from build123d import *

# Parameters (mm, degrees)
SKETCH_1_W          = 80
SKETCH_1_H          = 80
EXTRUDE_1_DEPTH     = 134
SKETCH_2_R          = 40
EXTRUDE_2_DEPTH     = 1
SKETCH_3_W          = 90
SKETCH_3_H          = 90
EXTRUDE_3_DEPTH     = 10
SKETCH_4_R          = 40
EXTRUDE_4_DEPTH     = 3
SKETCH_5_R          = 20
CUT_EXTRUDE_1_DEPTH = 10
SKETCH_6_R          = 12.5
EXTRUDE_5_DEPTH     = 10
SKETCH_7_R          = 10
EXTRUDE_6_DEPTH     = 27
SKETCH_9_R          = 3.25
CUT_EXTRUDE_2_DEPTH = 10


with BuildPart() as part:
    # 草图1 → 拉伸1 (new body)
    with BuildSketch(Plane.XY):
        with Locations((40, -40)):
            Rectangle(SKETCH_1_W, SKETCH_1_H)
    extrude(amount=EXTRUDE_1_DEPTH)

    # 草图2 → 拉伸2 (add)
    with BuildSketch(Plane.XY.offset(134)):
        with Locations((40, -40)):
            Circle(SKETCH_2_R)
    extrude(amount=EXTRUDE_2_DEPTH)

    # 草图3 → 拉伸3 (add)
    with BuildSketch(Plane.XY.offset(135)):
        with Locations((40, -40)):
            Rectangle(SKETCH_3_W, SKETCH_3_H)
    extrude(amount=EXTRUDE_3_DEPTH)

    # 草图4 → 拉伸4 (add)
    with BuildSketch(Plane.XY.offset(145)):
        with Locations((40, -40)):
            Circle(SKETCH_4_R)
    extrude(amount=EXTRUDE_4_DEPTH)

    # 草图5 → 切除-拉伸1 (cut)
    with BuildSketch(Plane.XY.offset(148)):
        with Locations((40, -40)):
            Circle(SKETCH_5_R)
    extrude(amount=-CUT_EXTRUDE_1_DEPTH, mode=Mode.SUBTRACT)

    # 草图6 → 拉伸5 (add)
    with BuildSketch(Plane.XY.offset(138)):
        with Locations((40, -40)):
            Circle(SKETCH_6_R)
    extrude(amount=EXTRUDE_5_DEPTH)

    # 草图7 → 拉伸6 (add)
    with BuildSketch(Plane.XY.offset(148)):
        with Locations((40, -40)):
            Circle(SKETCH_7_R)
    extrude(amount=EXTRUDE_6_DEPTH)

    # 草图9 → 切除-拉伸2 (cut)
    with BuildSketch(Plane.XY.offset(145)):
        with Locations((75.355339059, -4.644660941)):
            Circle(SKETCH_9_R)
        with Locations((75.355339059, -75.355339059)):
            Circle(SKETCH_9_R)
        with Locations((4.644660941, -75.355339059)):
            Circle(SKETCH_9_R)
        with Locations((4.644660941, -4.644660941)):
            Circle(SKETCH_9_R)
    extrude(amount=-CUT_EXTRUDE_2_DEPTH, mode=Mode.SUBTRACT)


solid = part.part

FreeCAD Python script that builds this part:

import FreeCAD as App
import Part
import Sketcher

V = App.Vector


def add_polygon(sketch, points):
    """Adds a closed chain of lines whose ends are joined by coincident constraints."""
    first, n = sketch.GeometryCount, len(points)
    for a, b in zip(points, points[1:] + points[:1]):
        sketch.addGeometry(Part.LineSegment(App.Vector(*a, 0), App.Vector(*b, 0)), False)
    for i in range(n):
        sketch.addConstraint(Sketcher.Constraint("Coincident", first + i, 2, first + (i + 1) % n, 1))

doc = App.newDocument("Part")
body = doc.addObject("PartDesign::Body", "Body")

# Sketch on XY plane
sketch1 = body.newObject("Sketcher::SketchObject", "Sketch")
sketch1.AttachmentSupport = (doc.getObject("XY_Plane"), [""])
sketch1.MapMode = "FlatFace"
add_polygon(sketch1, [(0, 0), (0, -80), (80, -80), (80, 0)])  # lines 0-3
sketch1.addConstraint(Sketcher.Constraint("Vertical", 0))
sketch1.addConstraint(Sketcher.Constraint("Horizontal", 1))
sketch1.addConstraint(Sketcher.Constraint("Vertical", 2))
sketch1.addConstraint(Sketcher.Constraint("Horizontal", 3))
sketch1.addConstraint(Sketcher.Constraint("Coincident", 3, 2, -1, 1))
sketch1.addConstraint(Sketcher.Constraint("Equal", 3, 0))
sketch1.addConstraint(Sketcher.Constraint("DistanceX", 1, 1, 1, 2, 80.0))
pad1 = body.newObject("PartDesign::Pad", "Pad")
pad1.Profile = sketch1
pad1.Length = 134

# Sketch on XY plane
sketch2 = body.newObject("Sketcher::SketchObject", "Sketch001")
sketch2.AttachmentSupport = (doc.getObject("XY_Plane"), [""])
sketch2.MapMode = "FlatFace"
sketch2.AttachmentOffset = App.Placement(V(0, 0, 134), App.Rotation())
sketch2.addGeometry(Part.Circle(V(40, -40, 0), V(0, 0, 1), 40), False)
sketch2.addConstraint(Sketcher.Constraint("Diameter", 0, 80.0))
sketch2.addConstraint(Sketcher.Constraint("DistanceX", -1, 1, 0, 3, 40.0))
sketch2.addConstraint(Sketcher.Constraint("DistanceY", 0, 3, -1, 1, 40.0))
pad2 = body.newObject("PartDesign::Pad", "Pad001")
pad2.Profile = sketch2
pad2.Length = 1

# Sketch on XY plane
sketch3 = body.newObject("Sketcher::SketchObject", "Sketch002")
sketch3.AttachmentSupport = (doc.getObject("XY_Plane"), [""])
sketch3.MapMode = "FlatFace"
sketch3.AttachmentOffset = App.Placement(V(0, 0, 135), App.Rotation())
add_polygon(sketch3, [(-5, 5), (-5, -85), (85, -85), (85, 5)])  # lines 0-3
sketch3.addConstraint(Sketcher.Constraint("Vertical", 0))
sketch3.addConstraint(Sketcher.Constraint("Horizontal", 1))
sketch3.addConstraint(Sketcher.Constraint("Vertical", 2))
sketch3.addConstraint(Sketcher.Constraint("Horizontal", 3))
sketch3.addConstraint(Sketcher.Constraint("Equal", 3, 0))
sketch3.addConstraint(Sketcher.Constraint("DistanceX", 1, 1, 1, 2, 90.0))
sketch3.addConstraint(Sketcher.Constraint("DistanceX", 0, 2, -1, 1, 5.0))
sketch3.addConstraint(Sketcher.Constraint("DistanceY", 0, 2, -1, 1, 85.0))
pad3 = body.newObject("PartDesign::Pad", "Pad002")
pad3.Profile = sketch3
pad3.Length = 10

# Sketch on XY plane
sketch4 = body.newObject("Sketcher::SketchObject", "Sketch003")
sketch4.AttachmentSupport = (doc.getObject("XY_Plane"), [""])
sketch4.MapMode = "FlatFace"
sketch4.AttachmentOffset = App.Placement(V(0, 0, 145), App.Rotation())
sketch4.addGeometry(Part.Circle(V(40, -40, 0), V(0, 0, 1), 40), False)
sketch4.addConstraint(Sketcher.Constraint("Diameter", 0, 80.0))
sketch4.addConstraint(Sketcher.Constraint("DistanceX", -1, 1, 0, 3, 40.0))
sketch4.addConstraint(Sketcher.Constraint("DistanceY", 0, 3, -1, 1, 40.0))
pad4 = body.newObject("PartDesign::Pad", "Pad003")
pad4.Profile = sketch4
pad4.Length = 3

# Sketch on XY plane
sketch5 = body.newObject("Sketcher::SketchObject", "Sketch004")
sketch5.AttachmentSupport = (doc.getObject("XY_Plane"), [""])
sketch5.MapMode = "FlatFace"
sketch5.AttachmentOffset = App.Placement(V(0, 0, 148), App.Rotation())
sketch5.addGeometry(Part.Circle(V(40, -40, 0), V(0, 0, 1), 20), False)
sketch5.addConstraint(Sketcher.Constraint("Diameter", 0, 40.0))
sketch5.addConstraint(Sketcher.Constraint("DistanceX", -1, 1, 0, 3, 40.0))
sketch5.addConstraint(Sketcher.Constraint("DistanceY", 0, 3, -1, 1, 40.0))
pocket1 = body.newObject("PartDesign::Pocket", "Pocket")
pocket1.Profile = sketch5
pocket1.Length = 10

# Sketch on XY plane
sketch6 = body.newObject("Sketcher::SketchObject", "Sketch005")
sketch6.AttachmentSupport = (doc.getObject("XY_Plane"), [""])
sketch6.MapMode = "FlatFace"
sketch6.AttachmentOffset = App.Placement(V(0, 0, 138), App.Rotation())
sketch6.addGeometry(Part.Circle(V(40, -40, 0), V(0, 0, 1), 12.5), False)
sketch6.addConstraint(Sketcher.Constraint("Diameter", 0, 25.0))
sketch6.addConstraint(Sketcher.Constraint("DistanceX", -1, 1, 0, 3, 40.0))
sketch6.addConstraint(Sketcher.Constraint("DistanceY", 0, 3, -1, 1, 40.0))
pad5 = body.newObject("PartDesign::Pad", "Pad004")
pad5.Profile = sketch6
pad5.Length = 10

# Sketch on XY plane
sketch7 = body.newObject("Sketcher::SketchObject", "Sketch006")
sketch7.AttachmentSupport = (doc.getObject("XY_Plane"), [""])
sketch7.MapMode = "FlatFace"
sketch7.AttachmentOffset = App.Placement(V(0, 0, 148), App.Rotation())
sketch7.addGeometry(Part.Circle(V(40, -40, 0), V(0, 0, 1), 10), False)
sketch7.addConstraint(Sketcher.Constraint("Diameter", 0, 20.0))
sketch7.addConstraint(Sketcher.Constraint("DistanceX", -1, 1, 0, 3, 40.0))
sketch7.addConstraint(Sketcher.Constraint("DistanceY", 0, 3, -1, 1, 40.0))
pad6 = body.newObject("PartDesign::Pad", "Pad005")
pad6.Profile = sketch7
pad6.Length = 27

# Sketch on XY plane
sketch8 = body.newObject("Sketcher::SketchObject", "Sketch007")
sketch8.AttachmentSupport = (doc.getObject("XY_Plane"), [""])
sketch8.MapMode = "FlatFace"
sketch8.AttachmentOffset = App.Placement(V(0, 0, 145), App.Rotation())
sketch8.addGeometry(Part.Circle(V(75.355339, -4.644661, 0), V(0, 0, 1), 3.25), False)
sketch8.addGeometry(Part.Circle(V(75.355339, -75.355339, 0), V(0, 0, 1), 3.25), False)
sketch8.addGeometry(Part.Circle(V(4.644661, -75.355339, 0), V(0, 0, 1), 3.25), False)
sketch8.addGeometry(Part.Circle(V(4.644661, -4.644661, 0), V(0, 0, 1), 3.25), False)
sketch8.addConstraint(Sketcher.Constraint("Equal", 0, 1))
sketch8.addConstraint(Sketcher.Constraint("Equal", 1, 2))
sketch8.addConstraint(Sketcher.Constraint("Equal", 2, 3))
sketch8.addConstraint(Sketcher.Constraint("Horizontal", 1, 3, 2, 3))
sketch8.addConstraint(Sketcher.Constraint("Horizontal", 0, 3, 3, 3))
sketch8.addConstraint(Sketcher.Constraint("Vertical", 0, 3, 1, 3))
sketch8.addConstraint(Sketcher.Constraint("Vertical", 2, 3, 3, 3))
sketch8.addConstraint(Sketcher.Constraint("Diameter", 0, 6.5))
sketch8.addConstraint(Sketcher.Constraint("DistanceX", -1, 1, 0, 3, 75.355339))
sketch8.addConstraint(Sketcher.Constraint("DistanceY", 0, 3, -1, 1, 4.644661))
sketch8.addConstraint(Sketcher.Constraint("DistanceY", 1, 3, -1, 1, 75.355339))
sketch8.addConstraint(Sketcher.Constraint("DistanceX", -1, 1, 2, 3, 4.644661))
pocket2 = body.newObject("PartDesign::Pocket", "Pocket001")
pocket2.Profile = sketch8
pocket2.Length = 10

doc.recompute()
